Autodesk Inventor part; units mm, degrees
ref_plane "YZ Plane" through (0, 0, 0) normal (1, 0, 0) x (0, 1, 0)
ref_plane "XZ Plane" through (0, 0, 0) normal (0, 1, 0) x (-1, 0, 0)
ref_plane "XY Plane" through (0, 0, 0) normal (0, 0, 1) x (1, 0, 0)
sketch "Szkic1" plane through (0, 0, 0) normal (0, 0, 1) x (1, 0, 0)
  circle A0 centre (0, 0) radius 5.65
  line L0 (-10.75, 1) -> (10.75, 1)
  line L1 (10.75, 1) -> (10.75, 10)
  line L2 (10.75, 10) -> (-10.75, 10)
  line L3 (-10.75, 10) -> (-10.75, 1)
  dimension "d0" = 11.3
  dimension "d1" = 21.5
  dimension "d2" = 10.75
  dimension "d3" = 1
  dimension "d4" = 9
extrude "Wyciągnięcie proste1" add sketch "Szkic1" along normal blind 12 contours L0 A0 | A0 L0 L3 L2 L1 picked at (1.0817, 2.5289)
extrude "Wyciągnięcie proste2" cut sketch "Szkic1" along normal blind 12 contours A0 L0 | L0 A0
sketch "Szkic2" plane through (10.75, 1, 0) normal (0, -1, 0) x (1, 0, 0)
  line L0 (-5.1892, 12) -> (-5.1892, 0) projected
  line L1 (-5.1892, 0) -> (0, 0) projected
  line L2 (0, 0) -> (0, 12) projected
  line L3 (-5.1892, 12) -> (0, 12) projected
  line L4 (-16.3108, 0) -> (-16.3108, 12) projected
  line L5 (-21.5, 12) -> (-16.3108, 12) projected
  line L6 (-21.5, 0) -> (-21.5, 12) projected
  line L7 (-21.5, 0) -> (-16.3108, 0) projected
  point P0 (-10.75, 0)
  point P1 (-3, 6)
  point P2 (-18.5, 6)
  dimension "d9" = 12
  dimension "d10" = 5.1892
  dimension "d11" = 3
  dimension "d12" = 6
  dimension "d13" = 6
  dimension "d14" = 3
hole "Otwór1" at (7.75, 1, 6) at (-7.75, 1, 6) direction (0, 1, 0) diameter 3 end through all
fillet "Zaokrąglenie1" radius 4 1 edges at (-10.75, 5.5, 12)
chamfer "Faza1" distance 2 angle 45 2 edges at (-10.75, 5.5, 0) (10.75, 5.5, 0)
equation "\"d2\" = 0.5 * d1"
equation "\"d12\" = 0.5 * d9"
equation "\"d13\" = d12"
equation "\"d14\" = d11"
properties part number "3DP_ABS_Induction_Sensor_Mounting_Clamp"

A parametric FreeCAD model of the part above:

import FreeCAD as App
import Part
import Sketcher

V = App.Vector
Q = App.Units.Quantity


def edges_at(feature, points):
    """Names of the edges that pass closest to the given points."""
    edges = feature.Shape.Edges
    near = lambda p: min(range(len(edges)), key=lambda i: edges[i].distToShape(Part.Vertex(*p))[0])
    return sorted({f"Edge{near(p) + 1}" for p in points})


def add_polygon(sketch, points):
    """Adds a closed chain of lines whose ends are joined by coincident constraints."""
    first, n = sketch.GeometryCount, len(points)
    for a, b in zip(points, points[1:] + points[:1]):
        sketch.addGeometry(Part.LineSegment(App.Vector(*a, 0), App.Vector(*b, 0)), False)
    for i in range(n):
        sketch.addConstraint(Sketcher.Constraint("Coincident", first + i, 2, first + (i + 1) % n, 1))

doc = App.newDocument("Part")
body = doc.addObject("PartDesign::Body", "Body")

sketch1 = body.newObject("Sketcher::SketchObject", "Sketch")
sketch1.AttachmentSupport = (doc.getObject("XY_Plane"), [""])
sketch1.MapMode = "FlatFace"
add_polygon(sketch1, [(11, 1), (11, 10), (-11, 10), (-11, 1)])
sketch1.addConstraint(Sketcher.Constraint("Vertical", 0))
sketch1.addConstraint(Sketcher.Constraint("Horizontal", 1))
sketch1.addConstraint(Sketcher.Constraint("Vertical", 2))
sketch1.addConstraint(Sketcher.Constraint("Horizontal", 3))
sketch1.addConstraint(Sketcher.Constraint("DistanceY", 0, 1, 0, 2, Q("9 mm")))
sketch1.addConstraint(Sketcher.Constraint("DistanceX", 1, 2, 1, 1, Q("21.5 mm")))
sketch1.addConstraint(Sketcher.Constraint("DistanceY", -1, 1, 2, 2, Q("1 mm")))
sketch1.addConstraint(Sketcher.Constraint("DistanceX", -1, 1, 0, 2, Q("10.75 mm")))
pad1 = body.newObject("PartDesign::Pad", "Pad")
pad1.Profile = sketch1
pad1.Length = 12

sketch2 = body.newObject("Sketcher::SketchObject", "Sketch001")
sketch2.AttachmentSupport = (doc.getObject("XY_Plane"), [""])
sketch2.MapMode = "FlatFace"
sketch2.addGeometry(Part.Circle(V(0, 0, 0), V(0, 0, 1), 6), False)
sketch2.addConstraint(Sketcher.Constraint("Coincident", 0, 3, -1, 1))
sketch2.addConstraint(Sketcher.Constraint("Diameter", 0, Q("11.3 mm")))
pocket1 = body.newObject("PartDesign::Pocket", "Pocket")
pocket1.Profile = sketch2
pocket1.Length = 12
pocket1.Reversed = True

sketch3 = body.newObject("Sketcher::SketchObject", "Sketch002")
sketch3.AttachmentSupport = (doc.getObject("XZ_Plane"), [""])
sketch3.MapMode = "FlatFace"
sketch3.AttachmentOffset = App.Placement(V(0, 0, -1), App.Rotation())
sketch3.addGeometry(Part.Circle(V(7.8, 6, 0), V(0, 0, 1), 1.5), False)
sketch3.addGeometry(Part.Circle(V(-7.8, 6, 0), V(0, 0, 1), 1.5), False)
sketch3.addConstraint(Sketcher.Constraint("Equal", 0, 1))
sketch3.addConstraint(Sketcher.Constraint("Symmetric", 0, 3, 1, 3, -2))
sketch3.addConstraint(Sketcher.Constraint("Diameter", 0, Q("3 mm")))
sketch3.addConstraint(Sketcher.Constraint("DistanceY", -1, 1, 0, 3, Q("6 mm")))
sketch3.addConstraint(Sketcher.Constraint("DistanceX", 1, 3, 0, 3, Q("15.5 mm")))
doc.recompute()
hole = body.newObject("PartDesign::Hole", "Hole")
hole.Profile = sketch3
hole.ThreadType = "None"
hole.Diameter = 3
hole.DepthType = "ThroughAll"
doc.recompute()

fillet = body.newObject("PartDesign::Fillet", "Fillet")
fillet.Base = (hole, edges_at(hole, [(-10.75, 5.5, 12)]))
fillet.Radius = 4
doc.recompute()

chamfer = body.newObject("PartDesign::Chamfer", "Chamfer")
chamfer.Base = (fillet, edges_at(fillet, [(-10.75, 5.5, 0), (10.75, 5.5, 0)]))
chamfer.Size = 2

doc.recompute()
